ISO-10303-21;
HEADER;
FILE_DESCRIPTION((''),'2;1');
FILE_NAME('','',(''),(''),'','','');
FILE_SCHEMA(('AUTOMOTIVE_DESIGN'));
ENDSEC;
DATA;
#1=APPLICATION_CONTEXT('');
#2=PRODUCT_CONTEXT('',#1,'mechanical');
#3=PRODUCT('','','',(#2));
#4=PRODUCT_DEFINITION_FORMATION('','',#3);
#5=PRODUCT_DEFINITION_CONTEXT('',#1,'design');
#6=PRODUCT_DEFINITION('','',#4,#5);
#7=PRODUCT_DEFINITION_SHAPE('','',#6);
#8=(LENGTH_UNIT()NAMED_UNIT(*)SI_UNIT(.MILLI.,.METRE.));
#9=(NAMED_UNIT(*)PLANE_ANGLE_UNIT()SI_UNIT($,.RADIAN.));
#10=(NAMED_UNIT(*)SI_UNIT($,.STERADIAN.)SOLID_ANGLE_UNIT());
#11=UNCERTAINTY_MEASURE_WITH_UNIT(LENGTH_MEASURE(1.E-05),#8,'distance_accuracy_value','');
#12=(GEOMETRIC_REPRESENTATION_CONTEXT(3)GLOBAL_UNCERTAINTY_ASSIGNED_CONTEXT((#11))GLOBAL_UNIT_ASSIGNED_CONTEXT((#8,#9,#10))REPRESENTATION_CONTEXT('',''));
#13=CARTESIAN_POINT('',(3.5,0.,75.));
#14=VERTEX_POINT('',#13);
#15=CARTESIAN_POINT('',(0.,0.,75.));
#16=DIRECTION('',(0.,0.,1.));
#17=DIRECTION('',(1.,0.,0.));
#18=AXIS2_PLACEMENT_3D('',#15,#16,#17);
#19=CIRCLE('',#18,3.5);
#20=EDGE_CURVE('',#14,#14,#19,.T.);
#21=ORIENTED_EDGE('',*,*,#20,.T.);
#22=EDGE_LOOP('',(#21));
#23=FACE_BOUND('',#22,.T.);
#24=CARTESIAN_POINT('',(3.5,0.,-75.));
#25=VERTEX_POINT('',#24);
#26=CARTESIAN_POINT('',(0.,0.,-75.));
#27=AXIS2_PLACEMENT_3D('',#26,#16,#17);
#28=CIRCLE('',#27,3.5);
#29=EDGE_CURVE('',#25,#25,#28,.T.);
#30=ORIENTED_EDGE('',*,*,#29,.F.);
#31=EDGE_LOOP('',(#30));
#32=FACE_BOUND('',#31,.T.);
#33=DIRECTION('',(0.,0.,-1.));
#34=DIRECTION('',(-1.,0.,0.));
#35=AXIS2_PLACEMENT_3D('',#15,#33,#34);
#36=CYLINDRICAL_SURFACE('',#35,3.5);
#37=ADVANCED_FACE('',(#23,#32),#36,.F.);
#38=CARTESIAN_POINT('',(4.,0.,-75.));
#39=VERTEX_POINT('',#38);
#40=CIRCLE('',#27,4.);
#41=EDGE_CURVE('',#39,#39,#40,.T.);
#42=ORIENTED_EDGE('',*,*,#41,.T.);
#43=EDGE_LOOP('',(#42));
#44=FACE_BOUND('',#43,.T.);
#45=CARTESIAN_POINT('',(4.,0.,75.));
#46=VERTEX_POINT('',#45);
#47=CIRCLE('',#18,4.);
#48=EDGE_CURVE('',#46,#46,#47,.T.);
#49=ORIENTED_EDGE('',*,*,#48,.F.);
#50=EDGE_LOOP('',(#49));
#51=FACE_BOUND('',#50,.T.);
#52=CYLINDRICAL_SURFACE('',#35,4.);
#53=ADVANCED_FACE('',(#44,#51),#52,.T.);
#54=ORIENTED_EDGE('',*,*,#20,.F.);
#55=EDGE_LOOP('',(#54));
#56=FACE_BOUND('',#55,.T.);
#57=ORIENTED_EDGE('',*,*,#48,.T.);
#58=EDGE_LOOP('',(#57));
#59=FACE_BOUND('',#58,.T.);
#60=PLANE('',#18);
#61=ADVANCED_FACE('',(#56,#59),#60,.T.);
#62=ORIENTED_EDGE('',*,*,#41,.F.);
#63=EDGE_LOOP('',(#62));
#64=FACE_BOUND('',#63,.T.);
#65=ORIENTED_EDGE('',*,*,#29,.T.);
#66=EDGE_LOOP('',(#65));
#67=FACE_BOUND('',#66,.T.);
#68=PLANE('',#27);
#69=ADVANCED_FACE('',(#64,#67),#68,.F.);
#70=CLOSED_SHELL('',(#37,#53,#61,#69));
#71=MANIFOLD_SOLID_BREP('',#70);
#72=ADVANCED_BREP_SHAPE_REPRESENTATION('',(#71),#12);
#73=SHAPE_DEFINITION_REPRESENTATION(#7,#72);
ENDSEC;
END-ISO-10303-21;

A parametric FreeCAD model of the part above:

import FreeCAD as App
import Part
import Sketcher

V = App.Vector

doc = App.newDocument("Part")
body = doc.addObject("PartDesign::Body", "Body")

# Sketch on XY plane
sketch1 = body.newObject("Sketcher::SketchObject", "Sketch")
sketch1.AttachmentSupport = (doc.getObject("XY_Plane"), [""])
sketch1.MapMode = "FlatFace"
sketch1.addGeometry([
    Part.Circle(V(0, 0, 0), V(0, 0, 1), 4),
    Part.Circle(V(0, 0, 0), V(0, 0, 1), 3.5),
], False)
sketch1.addConstraint([
    Sketcher.Constraint("Coincident", 0, 3, -1, 1),
    Sketcher.Constraint("Coincident", 1, 3, -1, 1),
    Sketcher.Constraint("Diameter", 0, 8.0),
    Sketcher.Constraint("Diameter", 1, 7.0),
])
pad1 = body.newObject("PartDesign::Pad", "Pad")
pad1.Profile = sketch1
pad1.Length = 150
pad1.Midplane = True

doc.recompute()
